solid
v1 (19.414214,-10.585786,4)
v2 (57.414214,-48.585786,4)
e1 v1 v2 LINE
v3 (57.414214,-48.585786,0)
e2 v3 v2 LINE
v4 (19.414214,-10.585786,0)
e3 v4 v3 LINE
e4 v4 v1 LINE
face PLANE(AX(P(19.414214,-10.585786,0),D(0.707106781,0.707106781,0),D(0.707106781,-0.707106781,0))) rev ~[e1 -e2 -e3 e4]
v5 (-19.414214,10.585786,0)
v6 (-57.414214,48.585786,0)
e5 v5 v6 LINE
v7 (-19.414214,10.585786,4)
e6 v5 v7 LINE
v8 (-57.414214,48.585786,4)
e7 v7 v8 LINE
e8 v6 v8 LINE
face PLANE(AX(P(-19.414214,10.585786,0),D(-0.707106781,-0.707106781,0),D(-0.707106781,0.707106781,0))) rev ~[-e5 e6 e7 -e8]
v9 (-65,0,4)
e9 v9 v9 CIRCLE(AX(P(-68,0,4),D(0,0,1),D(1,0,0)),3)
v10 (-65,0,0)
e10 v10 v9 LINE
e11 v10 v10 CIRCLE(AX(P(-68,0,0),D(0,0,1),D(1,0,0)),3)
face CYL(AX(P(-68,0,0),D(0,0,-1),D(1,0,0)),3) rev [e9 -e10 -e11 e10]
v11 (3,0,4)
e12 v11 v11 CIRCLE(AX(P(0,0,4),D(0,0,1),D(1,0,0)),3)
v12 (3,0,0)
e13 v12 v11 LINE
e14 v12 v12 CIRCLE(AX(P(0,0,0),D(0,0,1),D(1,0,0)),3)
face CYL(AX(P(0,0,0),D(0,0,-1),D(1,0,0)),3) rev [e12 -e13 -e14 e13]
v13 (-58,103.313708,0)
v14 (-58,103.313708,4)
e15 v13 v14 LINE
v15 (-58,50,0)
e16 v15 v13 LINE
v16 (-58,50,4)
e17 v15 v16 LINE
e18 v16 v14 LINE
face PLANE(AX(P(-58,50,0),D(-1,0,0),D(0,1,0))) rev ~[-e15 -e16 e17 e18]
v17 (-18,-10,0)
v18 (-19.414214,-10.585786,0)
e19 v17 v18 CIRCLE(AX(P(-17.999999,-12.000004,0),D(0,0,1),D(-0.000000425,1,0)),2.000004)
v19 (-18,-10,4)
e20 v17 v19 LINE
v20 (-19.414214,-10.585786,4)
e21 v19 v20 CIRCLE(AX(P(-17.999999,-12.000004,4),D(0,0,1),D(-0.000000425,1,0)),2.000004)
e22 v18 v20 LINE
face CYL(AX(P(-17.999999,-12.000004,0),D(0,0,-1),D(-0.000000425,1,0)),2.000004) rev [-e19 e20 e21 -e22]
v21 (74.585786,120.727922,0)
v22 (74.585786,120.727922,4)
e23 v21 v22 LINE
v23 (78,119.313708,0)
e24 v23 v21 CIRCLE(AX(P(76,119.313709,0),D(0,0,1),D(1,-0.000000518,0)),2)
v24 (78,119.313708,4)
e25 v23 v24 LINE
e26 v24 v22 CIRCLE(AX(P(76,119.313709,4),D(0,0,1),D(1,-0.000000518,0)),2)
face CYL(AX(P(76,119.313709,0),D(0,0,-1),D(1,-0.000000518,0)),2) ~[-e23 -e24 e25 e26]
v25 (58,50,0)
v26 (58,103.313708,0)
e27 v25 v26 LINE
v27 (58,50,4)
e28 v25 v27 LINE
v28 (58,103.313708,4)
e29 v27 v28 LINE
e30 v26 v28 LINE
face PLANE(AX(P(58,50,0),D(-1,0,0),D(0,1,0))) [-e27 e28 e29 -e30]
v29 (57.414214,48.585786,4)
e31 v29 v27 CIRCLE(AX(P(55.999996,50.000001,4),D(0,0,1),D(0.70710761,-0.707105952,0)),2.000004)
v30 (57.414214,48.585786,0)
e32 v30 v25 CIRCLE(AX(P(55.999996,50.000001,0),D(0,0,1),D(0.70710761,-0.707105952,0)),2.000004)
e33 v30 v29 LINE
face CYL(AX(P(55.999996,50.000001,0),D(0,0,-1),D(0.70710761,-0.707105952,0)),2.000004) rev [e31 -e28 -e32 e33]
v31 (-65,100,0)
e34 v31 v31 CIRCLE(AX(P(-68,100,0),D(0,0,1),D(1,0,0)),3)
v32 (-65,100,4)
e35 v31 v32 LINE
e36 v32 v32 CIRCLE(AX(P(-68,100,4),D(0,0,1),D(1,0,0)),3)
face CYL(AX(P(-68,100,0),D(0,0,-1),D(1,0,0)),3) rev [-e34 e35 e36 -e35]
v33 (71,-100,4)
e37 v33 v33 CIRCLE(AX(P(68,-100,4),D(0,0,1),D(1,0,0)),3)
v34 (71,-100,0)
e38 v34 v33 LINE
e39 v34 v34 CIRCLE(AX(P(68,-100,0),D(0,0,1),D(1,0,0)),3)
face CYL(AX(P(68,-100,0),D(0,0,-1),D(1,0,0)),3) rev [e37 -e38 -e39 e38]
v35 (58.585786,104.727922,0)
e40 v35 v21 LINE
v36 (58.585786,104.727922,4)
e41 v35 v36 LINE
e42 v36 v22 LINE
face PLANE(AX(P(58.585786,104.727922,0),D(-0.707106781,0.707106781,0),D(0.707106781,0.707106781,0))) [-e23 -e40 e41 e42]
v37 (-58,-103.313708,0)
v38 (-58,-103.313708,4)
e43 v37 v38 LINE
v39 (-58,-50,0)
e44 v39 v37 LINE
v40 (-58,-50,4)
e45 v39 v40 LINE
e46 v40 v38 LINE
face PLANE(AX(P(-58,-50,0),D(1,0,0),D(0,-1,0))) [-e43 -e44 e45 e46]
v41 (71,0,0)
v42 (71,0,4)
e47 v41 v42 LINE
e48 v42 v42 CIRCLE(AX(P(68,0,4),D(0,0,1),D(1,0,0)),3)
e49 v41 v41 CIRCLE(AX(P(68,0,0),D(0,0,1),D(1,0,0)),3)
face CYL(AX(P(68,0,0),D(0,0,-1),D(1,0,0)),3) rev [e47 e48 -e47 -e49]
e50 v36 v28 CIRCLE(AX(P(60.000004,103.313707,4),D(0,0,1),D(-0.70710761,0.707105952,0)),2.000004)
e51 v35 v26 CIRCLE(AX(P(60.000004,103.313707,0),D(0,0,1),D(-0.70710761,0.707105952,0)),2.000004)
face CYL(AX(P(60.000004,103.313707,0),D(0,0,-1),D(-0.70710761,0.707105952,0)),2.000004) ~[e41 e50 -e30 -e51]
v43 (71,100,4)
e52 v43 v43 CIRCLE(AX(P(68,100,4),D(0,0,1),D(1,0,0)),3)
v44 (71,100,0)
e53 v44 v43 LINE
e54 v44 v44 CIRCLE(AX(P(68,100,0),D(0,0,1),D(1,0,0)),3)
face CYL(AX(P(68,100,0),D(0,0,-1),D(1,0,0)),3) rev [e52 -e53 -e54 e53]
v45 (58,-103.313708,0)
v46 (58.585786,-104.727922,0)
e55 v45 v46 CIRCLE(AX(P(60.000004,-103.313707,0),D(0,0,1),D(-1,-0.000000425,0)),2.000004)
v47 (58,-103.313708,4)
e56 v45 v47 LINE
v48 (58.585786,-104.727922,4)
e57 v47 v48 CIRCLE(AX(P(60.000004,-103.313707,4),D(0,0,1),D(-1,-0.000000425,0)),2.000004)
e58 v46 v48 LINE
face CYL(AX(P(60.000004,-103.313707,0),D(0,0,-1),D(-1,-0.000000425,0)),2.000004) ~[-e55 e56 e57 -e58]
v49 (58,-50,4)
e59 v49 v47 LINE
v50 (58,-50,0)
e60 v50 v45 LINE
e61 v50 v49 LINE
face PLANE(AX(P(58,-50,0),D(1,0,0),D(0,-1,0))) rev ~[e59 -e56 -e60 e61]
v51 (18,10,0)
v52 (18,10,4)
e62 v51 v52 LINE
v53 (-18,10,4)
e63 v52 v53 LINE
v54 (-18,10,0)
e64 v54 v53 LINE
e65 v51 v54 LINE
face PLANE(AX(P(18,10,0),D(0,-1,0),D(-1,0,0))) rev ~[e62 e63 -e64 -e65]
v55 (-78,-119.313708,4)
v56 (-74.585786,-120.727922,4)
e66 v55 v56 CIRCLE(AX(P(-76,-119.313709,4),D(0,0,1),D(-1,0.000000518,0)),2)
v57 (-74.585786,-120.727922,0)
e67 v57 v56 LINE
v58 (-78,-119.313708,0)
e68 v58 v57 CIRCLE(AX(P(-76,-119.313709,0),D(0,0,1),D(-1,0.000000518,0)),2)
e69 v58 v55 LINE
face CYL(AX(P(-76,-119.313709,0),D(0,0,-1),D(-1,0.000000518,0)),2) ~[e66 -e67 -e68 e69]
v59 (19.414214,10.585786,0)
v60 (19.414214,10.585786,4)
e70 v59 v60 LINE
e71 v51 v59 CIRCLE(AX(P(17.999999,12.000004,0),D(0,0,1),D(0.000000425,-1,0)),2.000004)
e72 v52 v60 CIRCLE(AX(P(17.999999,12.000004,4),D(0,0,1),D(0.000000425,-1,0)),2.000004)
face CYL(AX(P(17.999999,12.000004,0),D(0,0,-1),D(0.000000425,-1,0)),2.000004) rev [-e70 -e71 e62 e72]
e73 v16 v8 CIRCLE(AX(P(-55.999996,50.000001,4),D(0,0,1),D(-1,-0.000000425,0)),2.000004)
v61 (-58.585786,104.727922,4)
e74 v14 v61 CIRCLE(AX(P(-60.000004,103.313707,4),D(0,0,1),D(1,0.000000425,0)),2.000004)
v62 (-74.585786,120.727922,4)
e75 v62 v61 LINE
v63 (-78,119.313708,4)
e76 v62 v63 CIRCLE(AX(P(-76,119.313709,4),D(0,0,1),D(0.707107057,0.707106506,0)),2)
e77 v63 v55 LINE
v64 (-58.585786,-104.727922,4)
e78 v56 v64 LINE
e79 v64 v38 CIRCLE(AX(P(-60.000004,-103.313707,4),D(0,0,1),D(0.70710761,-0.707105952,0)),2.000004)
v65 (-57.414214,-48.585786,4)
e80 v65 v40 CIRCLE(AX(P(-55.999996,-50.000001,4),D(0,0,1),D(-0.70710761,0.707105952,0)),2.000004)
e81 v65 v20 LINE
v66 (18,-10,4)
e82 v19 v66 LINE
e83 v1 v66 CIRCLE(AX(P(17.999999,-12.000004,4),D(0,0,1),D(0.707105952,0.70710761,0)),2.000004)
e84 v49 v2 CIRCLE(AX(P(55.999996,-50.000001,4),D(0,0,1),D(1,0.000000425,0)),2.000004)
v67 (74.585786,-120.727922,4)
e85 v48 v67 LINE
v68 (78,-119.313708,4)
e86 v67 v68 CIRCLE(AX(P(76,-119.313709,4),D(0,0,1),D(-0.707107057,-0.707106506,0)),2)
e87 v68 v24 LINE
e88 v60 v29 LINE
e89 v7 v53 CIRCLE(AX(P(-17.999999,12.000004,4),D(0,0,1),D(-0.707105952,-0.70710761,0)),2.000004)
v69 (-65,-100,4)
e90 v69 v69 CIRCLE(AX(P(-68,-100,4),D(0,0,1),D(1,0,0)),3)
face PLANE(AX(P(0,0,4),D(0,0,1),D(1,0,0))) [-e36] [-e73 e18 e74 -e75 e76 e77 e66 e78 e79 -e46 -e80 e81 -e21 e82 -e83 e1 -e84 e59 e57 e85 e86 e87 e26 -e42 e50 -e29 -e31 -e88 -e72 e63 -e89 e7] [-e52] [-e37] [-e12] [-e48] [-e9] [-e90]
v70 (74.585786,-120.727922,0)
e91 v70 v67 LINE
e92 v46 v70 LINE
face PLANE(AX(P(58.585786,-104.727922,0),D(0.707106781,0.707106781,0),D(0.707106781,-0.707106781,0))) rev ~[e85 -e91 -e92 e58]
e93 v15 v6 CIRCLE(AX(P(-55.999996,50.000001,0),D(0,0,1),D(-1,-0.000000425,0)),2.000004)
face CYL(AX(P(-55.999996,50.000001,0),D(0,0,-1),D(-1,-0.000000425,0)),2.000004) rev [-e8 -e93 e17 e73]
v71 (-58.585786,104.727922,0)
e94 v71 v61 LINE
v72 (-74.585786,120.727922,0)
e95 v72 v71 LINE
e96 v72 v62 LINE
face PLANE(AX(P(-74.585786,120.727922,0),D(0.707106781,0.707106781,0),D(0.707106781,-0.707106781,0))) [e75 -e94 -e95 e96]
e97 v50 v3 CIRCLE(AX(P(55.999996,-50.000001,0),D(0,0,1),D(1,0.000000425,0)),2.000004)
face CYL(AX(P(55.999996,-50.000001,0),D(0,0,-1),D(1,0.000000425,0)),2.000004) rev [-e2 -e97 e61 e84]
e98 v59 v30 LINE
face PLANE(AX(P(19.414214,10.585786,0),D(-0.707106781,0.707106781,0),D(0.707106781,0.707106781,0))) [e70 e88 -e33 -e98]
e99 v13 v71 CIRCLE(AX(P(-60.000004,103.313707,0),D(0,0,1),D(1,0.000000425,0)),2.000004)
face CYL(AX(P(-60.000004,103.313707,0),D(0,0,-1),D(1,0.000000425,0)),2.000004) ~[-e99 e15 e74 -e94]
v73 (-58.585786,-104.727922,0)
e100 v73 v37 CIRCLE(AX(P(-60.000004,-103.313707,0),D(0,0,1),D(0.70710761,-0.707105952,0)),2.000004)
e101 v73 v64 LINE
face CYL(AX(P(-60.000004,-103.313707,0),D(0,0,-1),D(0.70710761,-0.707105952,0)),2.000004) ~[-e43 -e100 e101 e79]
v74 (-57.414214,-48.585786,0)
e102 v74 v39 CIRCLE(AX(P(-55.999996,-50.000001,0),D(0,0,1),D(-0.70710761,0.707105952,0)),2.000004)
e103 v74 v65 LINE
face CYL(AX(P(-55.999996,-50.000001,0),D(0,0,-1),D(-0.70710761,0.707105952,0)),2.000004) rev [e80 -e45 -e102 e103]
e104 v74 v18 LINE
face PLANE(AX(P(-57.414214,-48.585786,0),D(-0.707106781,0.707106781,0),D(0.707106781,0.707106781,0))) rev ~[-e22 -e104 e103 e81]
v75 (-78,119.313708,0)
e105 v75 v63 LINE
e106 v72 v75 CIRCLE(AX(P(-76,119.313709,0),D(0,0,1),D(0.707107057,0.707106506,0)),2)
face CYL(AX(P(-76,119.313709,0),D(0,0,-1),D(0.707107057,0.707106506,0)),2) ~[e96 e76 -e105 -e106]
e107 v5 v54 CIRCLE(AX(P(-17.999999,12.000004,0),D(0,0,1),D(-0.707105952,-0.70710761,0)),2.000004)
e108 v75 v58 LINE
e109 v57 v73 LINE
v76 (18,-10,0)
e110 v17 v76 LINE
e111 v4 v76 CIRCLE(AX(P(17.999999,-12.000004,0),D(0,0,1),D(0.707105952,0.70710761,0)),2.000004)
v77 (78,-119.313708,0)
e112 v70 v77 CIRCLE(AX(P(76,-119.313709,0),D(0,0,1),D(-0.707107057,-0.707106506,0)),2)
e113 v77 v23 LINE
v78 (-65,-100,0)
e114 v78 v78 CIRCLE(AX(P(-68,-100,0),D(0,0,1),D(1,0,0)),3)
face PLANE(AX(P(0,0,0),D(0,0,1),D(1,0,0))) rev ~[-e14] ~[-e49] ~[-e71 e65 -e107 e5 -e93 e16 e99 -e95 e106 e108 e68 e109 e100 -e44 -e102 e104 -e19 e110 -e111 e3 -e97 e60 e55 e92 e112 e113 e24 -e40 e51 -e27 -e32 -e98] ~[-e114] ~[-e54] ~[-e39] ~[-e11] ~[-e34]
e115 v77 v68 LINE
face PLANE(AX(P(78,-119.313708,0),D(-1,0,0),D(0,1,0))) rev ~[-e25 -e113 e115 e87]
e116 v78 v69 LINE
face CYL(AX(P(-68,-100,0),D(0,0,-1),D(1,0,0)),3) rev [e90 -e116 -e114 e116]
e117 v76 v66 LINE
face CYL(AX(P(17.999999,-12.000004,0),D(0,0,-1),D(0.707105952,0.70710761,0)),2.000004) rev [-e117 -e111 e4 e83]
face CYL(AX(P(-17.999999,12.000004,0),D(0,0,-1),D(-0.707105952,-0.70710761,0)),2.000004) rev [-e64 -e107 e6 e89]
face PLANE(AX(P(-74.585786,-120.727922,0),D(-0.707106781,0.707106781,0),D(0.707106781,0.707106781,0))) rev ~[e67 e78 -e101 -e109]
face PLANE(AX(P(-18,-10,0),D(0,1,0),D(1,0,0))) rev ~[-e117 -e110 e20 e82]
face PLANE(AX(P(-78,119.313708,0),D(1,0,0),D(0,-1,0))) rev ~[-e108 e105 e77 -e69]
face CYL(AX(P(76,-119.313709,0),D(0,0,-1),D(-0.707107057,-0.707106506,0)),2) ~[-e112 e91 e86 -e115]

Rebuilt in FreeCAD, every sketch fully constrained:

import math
import FreeCAD as App
import Part
import Sketcher
from FreeCAD import Vector
Q = App.Units.Quantity

doc = App.newDocument("Part")
params = doc.addObject("Spreadsheet::Sheet", "Params")
for row, (alias, value) in enumerate([
    ("sketch1_diameter", "6 mm"),
    ("sketch1_radius", "2 mm"),
    ("sketch1_width", "36 mm"),
    ("pad1_length", "4 mm"),
], start=1):
    params.set(f"A{row}", alias)
    params.set(f"B{row}", "=" + value)
    params.setAlias(f"B{row}", alias)

body = doc.addObject("PartDesign::Body", "Body")

# Sketch on XY plane
sketch1 = body.newObject("Sketcher::SketchObject", "Sketch")
sketch1.AttachmentSupport = (doc.getObject("XY_Plane"), [""])
sketch1.MapMode = "FlatFace"
sketch1.addGeometry([
    Part.LineSegment(Vector(-78, 119.3, 0), Vector(-78, -119.3, 0)),  # 0
    Part.ArcOfCircle(Part.Circle(Vector(-76, -119.3, 0), Vector(0, 0, 1), 2), math.radians(180), math.radians(315)),  # 1
    Part.LineSegment(Vector(-74.6, -120.7, 0), Vector(-58.6, -104.7, 0)),  # 2
    Part.ArcOfCircle(Part.Circle(Vector(-60, -103.3, 0), Vector(0, 0, 1), 2), math.radians(-45), math.radians(0)),  # 3
    Part.LineSegment(Vector(-58, -103.3, 0), Vector(-58, -50, 0)),  # 4
    Part.ArcOfCircle(Part.Circle(Vector(-56, -50, 0), Vector(0, 0, 1), 2), math.radians(135), math.radians(180)),  # 5
    Part.LineSegment(Vector(-57.4, -48.6, 0), Vector(-19.4, -10.6, 0)),  # 6
    Part.ArcOfCircle(Part.Circle(Vector(-18, -12, 0), Vector(0, 0, 1), 2), math.radians(90), math.radians(135)),  # 7
    Part.LineSegment(Vector(-18, -10, 0), Vector(18, -10, 0)),  # 8
    Part.ArcOfCircle(Part.Circle(Vector(18, -12, 0), Vector(0, 0, 1), 2), math.radians(45), math.radians(90)),  # 9
    Part.LineSegment(Vector(19.4, -10.6, 0), Vector(57.4, -48.6, 0)),  # 10
    Part.ArcOfCircle(Part.Circle(Vector(56, -50, 0), Vector(0, 0, 1), 2), math.radians(0), math.radians(45)),  # 11
    Part.LineSegment(Vector(58, -50, 0), Vector(58, -103.3, 0)),  # 12
    Part.ArcOfCircle(Part.Circle(Vector(60, -103.3, 0), Vector(0, 0, 1), 2), math.radians(-180), math.radians(-135)),  # 13
    Part.LineSegment(Vector(58.6, -104.7, 0), Vector(74.6, -120.7, 0)),  # 14
    Part.ArcOfCircle(Part.Circle(Vector(76, -119.3, 0), Vector(0, 0, 1), 2), math.radians(-135), math.radians(0)),  # 15
    Part.LineSegment(Vector(78, -119.3, 0), Vector(78, 119.3, 0)),  # 16
    Part.ArcOfCircle(Part.Circle(Vector(76, 119.3, 0), Vector(0, 0, 1), 2), math.radians(0), math.radians(135)),  # 17
    Part.LineSegment(Vector(74.6, 120.7, 0), Vector(58.6, 104.7, 0)),  # 18
    Part.ArcOfCircle(Part.Circle(Vector(60, 103.3, 0), Vector(0, 0, 1), 2), math.radians(135), math.radians(180)),  # 19
    Part.LineSegment(Vector(58, 103.3, 0), Vector(58, 50, 0)),  # 20
    Part.ArcOfCircle(Part.Circle(Vector(56, 50, 0), Vector(0, 0, 1), 2), math.radians(-45), math.radians(0)),  # 21
    Part.LineSegment(Vector(57.4, 48.6, 0), Vector(19.4, 10.6, 0)),  # 22
    Part.ArcOfCircle(Part.Circle(Vector(18, 12, 0), Vector(0, 0, 1), 2), math.radians(-90), math.radians(-45)),  # 23
    Part.LineSegment(Vector(18, 10, 0), Vector(-18, 10, 0)),  # 24
    Part.ArcOfCircle(Part.Circle(Vector(-18, 12, 0), Vector(0, 0, 1), 2), math.radians(-135), math.radians(-90)),  # 25
    Part.LineSegment(Vector(-19.4, 10.6, 0), Vector(-57.4, 48.6, 0)),  # 26
    Part.ArcOfCircle(Part.Circle(Vector(-56, 50, 0), Vector(0, 0, 1), 2), math.radians(-180), math.radians(-135)),  # 27
    Part.LineSegment(Vector(-58, 50, 0), Vector(-58, 103.3, 0)),  # 28
    Part.ArcOfCircle(Part.Circle(Vector(-60, 103.3, 0), Vector(0, 0, 1), 2), math.radians(0), math.radians(45)),  # 29
    Part.LineSegment(Vector(-58.6, 104.7, 0), Vector(-74.6, 120.7, 0)),  # 30
    Part.ArcOfCircle(Part.Circle(Vector(-76, 119.3, 0), Vector(0, 0, 1), 2), math.radians(45), math.radians(180)),  # 31
    Part.Circle(Vector(-68, -100, 0), Vector(0, 0, 1), 3),  # 32
    Part.Circle(Vector(-68, 0, 0), Vector(0, 0, 1), 3),  # 33
    Part.Circle(Vector(68, -100, 0), Vector(0, 0, 1), 3),  # 34
    Part.Circle(Vector(0, 0, 0), Vector(0, 0, 1), 3),  # 35
    Part.Circle(Vector(68, 0, 0), Vector(0, 0, 1), 3),  # 36
    Part.Circle(Vector(-68, 100, 0), Vector(0, 0, 1), 3),  # 37
    Part.Circle(Vector(68, 100, 0), Vector(0, 0, 1), 3),  # 38
], False)
sketch1.addConstraint([
    Sketcher.Constraint("Tangent", 0, 2, 1, 1),
    Sketcher.Constraint("Tangent", 1, 2, 2, 1),
    Sketcher.Constraint("Tangent", 2, 2, 3, 1),
    Sketcher.Constraint("Tangent", 3, 2, 4, 1),
    Sketcher.Constraint("Tangent", 4, 2, 5, 2),
    Sketcher.Constraint("Tangent", 5, 1, 6, 1),
    Sketcher.Constraint("Tangent", 6, 2, 7, 2),
    Sketcher.Constraint("Tangent", 7, 1, 8, 1),
    Sketcher.Constraint("Tangent", 8, 2, 9, 2),
    Sketcher.Constraint("Tangent", 9, 1, 10, 1),
    Sketcher.Constraint("Tangent", 10, 2, 11, 2),
    Sketcher.Constraint("Tangent", 11, 1, 12, 1),
    Sketcher.Constraint("Tangent", 12, 2, 13, 1),
    Sketcher.Constraint("Tangent", 13, 2, 14, 1),
    Sketcher.Constraint("Tangent", 14, 2, 15, 1),
    Sketcher.Constraint("Tangent", 15, 2, 16, 1),
    Sketcher.Constraint("Tangent", 16, 2, 17, 1),
    Sketcher.Constraint("Tangent", 17, 2, 18, 1),
    Sketcher.Constraint("Tangent", 18, 2, 19, 1),
    Sketcher.Constraint("Tangent", 19, 2, 20, 1),
    Sketcher.Constraint("Tangent", 20, 2, 21, 2),
    Sketcher.Constraint("Tangent", 21, 1, 22, 1),
    Sketcher.Constraint("Tangent", 22, 2, 23, 2),
    Sketcher.Constraint("Tangent", 23, 1, 24, 1),
    Sketcher.Constraint("Tangent", 24, 2, 25, 2),
    Sketcher.Constraint("Tangent", 25, 1, 26, 1),
    Sketcher.Constraint("Tangent", 26, 2, 27, 2),
    Sketcher.Constraint("Tangent", 27, 1, 28, 1),
    Sketcher.Constraint("Tangent", 28, 2, 29, 1),
    Sketcher.Constraint("Tangent", 29, 2, 30, 1),
    Sketcher.Constraint("Tangent", 30, 2, 31, 1),
    Sketcher.Constraint("Tangent", 31, 2, 0, 1),
    Sketcher.Constraint("Vertical", 0),
    Sketcher.Constraint("Vertical", 4),
    Sketcher.Constraint("Horizontal", 8),
    Sketcher.Constraint("Vertical", 12),
    Sketcher.Constraint("Vertical", 16),
    Sketcher.Constraint("Vertical", 20),
    Sketcher.Constraint("Horizontal", 24),
    Sketcher.Constraint("Vertical", 28),
    Sketcher.Constraint("Coincident", 35, 3, -1, 1),
    Sketcher.Constraint("Equal", 3, 5),
    Sketcher.Constraint("Equal", 5, 7),
    Sketcher.Constraint("Equal", 7, 9),
    Sketcher.Constraint("Equal", 9, 11),
    Sketcher.Constraint("Equal", 11, 13),
    Sketcher.Constraint("Equal", 1, 15),
    Sketcher.Constraint("Equal", 15, 17),
    Sketcher.Constraint("Equal", 13, 19),
    Sketcher.Constraint("Equal", 19, 21),
    Sketcher.Constraint("Equal", 21, 23),
    Sketcher.Constraint("Equal", 23, 25),
    Sketcher.Constraint("Equal", 25, 27),
    Sketcher.Constraint("Equal", 27, 29),
    Sketcher.Constraint("Equal", 17, 31),
    Sketcher.Constraint("Equal", 32, 33),
    Sketcher.Constraint("Equal", 33, 34),
    Sketcher.Constraint("Equal", 34, 35),
    Sketcher.Constraint("Equal", 35, 36),
    Sketcher.Constraint("Equal", 36, 37),
    Sketcher.Constraint("Equal", 37, 38),
    Sketcher.Constraint("Symmetric", 1, 3, 17, 3, -1, 1),
    Sketcher.Constraint("Symmetric", 3, 3, 19, 3, -1, 1),
    Sketcher.Constraint("Symmetric", 7, 3, 23, 3, -1, 1),
    Sketcher.Constraint("Symmetric", 11, 3, 27, 3, -1, 1),
    Sketcher.Constraint("Symmetric", 33, 3, 36, 3, -1, 1),
    Sketcher.Constraint("Symmetric", 34, 3, 37, 3, -1, 1),
    Sketcher.Constraint("Symmetric", 32, 3, 38, 3, -1, 1),
    Sketcher.Constraint("Symmetric", 13, 2, 29, 2, -1, 1),
    Sketcher.Constraint("Symmetric", 5, 3, 11, 3, -2),
    Sketcher.Constraint("Symmetric", 32, 3, 34, 3, -2),
    Sketcher.Constraint("Symmetric", 2, 2, 13, 2, -2),
    Sketcher.Constraint("Symmetric", 22, 2, 25, 1, -2),
    Sketcher.Constraint("PointOnObject", 33, 3, -1),
    Sketcher.Constraint("Parallel", 2, 6),
    Sketcher.Constraint("Perpendicular", 6, 10),
    Sketcher.Constraint("Parallel", 10, 14),
    Sketcher.Constraint("Vertical", 32, 3, 33, 3),
    Sketcher.Constraint("Diameter", 32, Q("6 mm")),
    Sketcher.Constraint("Radius", 1, Q("2 mm")),
    Sketcher.Constraint("DistanceX", 8, 1, 8, 2, Q("36 mm")),
    Sketcher.Constraint("DistanceX", 1, 3, -1, 1, Q("76 mm")),
    Sketcher.Constraint("DistanceY", 5, 3, -1, 1, Q("50.000001 mm")),
    Sketcher.Constraint("DistanceX", 32, 3, -1, 1, Q("68 mm")),
    Sketcher.Constraint("DistanceY", 32, 3, -1, 1, Q("100 mm")),
    Sketcher.Constraint("DistanceX", 3, 2, -1, 1, Q("58 mm")),
    Sketcher.Constraint("DistanceY", 1, 3, 3, 3, Q("16.000002 mm")),
    Sketcher.Constraint("DistanceY", 4, 1, 4, 2, Q("53.313708 mm")),
])
sketch1.setExpression("Constraints[78]", "Params.sketch1_diameter")
sketch1.setExpression("Constraints[79]", "Params.sketch1_radius")
sketch1.setExpression("Constraints[80]", "Params.sketch1_width")
pad1 = body.newObject("PartDesign::Pad", "Pad")
pad1.Profile = sketch1
pad1.setExpression("Length", "Params.pad1_length")

doc.recompute()
